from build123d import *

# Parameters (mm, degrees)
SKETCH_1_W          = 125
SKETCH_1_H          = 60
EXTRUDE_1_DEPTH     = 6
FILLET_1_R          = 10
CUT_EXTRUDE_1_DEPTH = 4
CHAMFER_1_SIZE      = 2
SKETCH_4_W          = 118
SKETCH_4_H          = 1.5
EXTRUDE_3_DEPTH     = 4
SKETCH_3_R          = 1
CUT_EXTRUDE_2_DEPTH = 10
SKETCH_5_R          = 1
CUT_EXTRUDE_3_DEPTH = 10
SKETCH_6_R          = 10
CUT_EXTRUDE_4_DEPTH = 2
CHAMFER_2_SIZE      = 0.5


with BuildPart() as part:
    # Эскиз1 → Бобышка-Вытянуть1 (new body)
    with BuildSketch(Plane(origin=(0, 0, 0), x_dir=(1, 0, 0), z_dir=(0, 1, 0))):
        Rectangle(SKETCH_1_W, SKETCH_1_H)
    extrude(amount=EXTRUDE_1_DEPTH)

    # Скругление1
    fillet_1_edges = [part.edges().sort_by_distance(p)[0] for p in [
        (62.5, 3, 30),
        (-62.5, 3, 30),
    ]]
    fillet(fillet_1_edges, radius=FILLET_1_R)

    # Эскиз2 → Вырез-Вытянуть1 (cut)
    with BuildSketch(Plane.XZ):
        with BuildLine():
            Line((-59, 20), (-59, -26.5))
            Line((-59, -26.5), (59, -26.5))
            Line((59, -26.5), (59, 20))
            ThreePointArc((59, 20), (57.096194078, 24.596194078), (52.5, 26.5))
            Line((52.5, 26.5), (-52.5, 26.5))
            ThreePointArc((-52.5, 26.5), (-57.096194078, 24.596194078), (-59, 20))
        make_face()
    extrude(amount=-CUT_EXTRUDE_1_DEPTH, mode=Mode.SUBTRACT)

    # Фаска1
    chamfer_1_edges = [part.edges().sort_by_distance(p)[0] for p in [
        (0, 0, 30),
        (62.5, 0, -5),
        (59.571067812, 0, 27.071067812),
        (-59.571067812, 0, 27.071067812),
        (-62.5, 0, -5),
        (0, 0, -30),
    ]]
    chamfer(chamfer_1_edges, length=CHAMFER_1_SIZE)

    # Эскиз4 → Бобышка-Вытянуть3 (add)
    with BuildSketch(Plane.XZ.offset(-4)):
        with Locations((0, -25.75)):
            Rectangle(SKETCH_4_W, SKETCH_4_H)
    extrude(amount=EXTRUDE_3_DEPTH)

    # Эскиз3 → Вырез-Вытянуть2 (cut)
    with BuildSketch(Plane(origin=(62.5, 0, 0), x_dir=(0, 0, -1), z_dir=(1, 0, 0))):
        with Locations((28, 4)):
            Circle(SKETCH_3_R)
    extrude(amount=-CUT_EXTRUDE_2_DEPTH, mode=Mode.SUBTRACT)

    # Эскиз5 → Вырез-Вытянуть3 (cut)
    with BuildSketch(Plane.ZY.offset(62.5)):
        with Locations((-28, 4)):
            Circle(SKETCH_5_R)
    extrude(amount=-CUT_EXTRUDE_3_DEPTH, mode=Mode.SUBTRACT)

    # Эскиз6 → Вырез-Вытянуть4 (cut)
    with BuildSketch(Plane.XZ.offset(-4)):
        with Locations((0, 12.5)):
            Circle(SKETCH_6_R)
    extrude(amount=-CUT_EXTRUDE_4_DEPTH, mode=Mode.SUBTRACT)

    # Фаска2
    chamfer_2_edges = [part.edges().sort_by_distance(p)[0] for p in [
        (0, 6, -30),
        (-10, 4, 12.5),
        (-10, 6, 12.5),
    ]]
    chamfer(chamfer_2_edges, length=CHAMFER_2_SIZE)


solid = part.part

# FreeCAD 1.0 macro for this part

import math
import FreeCAD as App
import Part
import Sketcher
Q = App.Units.Quantity


def edges_at(feature, points):
    """Names of the edges that pass closest to the given points."""
    edges = feature.Shape.Edges
    near = lambda p: min(range(len(edges)), key=lambda i: edges[i].distToShape(Part.Vertex(*p))[0])
    return sorted({f"Edge{near(p) + 1}" for p in points})

doc = App.newDocument("Part")
body = doc.addObject("PartDesign::Body", "Body")

sketch1 = body.newObject("Sketcher::SketchObject", "Sketch")
sketch1.AttachmentSupport = (doc.getObject("XZ_Plane"), [""])
sketch1.MapMode = "FlatFace"
sketch1.addGeometry([
    Part.LineSegment(App.Vector(-62, -30, 0), App.Vector(-62, 30, 0)),
    Part.LineSegment(App.Vector(-62, 30, 0), App.Vector(62, 30, 0)),
    Part.LineSegment(App.Vector(62, 30, 0), App.Vector(62, -30, 0)),
    Part.LineSegment(App.Vector(62, -30, 0), App.Vector(-62, -30, 0)),
], False)
sketch1.addConstraint([
    Sketcher.Constraint("Coincident", 0, 2, 1, 1),
    Sketcher.Constraint("Coincident", 1, 2, 2, 1),
    Sketcher.Constraint("Coincident", 2, 2, 3, 1),
    Sketcher.Constraint("Coincident", 3, 2, 0, 1),
    Sketcher.Constraint("Vertical", 0),
    Sketcher.Constraint("Horizontal", 1),
    Sketcher.Constraint("Vertical", 2),
    Sketcher.Constraint("Horizontal", 3),
    Sketcher.Constraint("Symmetric", 0, 2, 2, 2, -1, 1),
    Sketcher.Constraint("DistanceX", 1, 1, 1, 2, Q("125 mm")),
    Sketcher.Constraint("DistanceY", 0, 1, 0, 2, Q("60 mm")),
])
pad1 = body.newObject("PartDesign::Pad", "Pad")
pad1.Profile = sketch1
pad1.Length = 6
pad1.Reversed = True
doc.recompute()

fillet = body.newObject("PartDesign::Fillet", "Fillet")
fillet.Base = (pad1, edges_at(pad1, [(62.5, 3, 30), (-62.5, 3, 30)]))
fillet.Radius = 10

sketch2 = body.newObject("Sketcher::SketchObject", "Sketch001")
sketch2.AttachmentSupport = (doc.getObject("XZ_Plane"), [""])
sketch2.MapMode = "FlatFace"
sketch2.addGeometry([
    Part.LineSegment(App.Vector(-59, 20, 0), App.Vector(-59, -26, 0)),
    Part.LineSegment(App.Vector(-59, -26, 0), App.Vector(59, -26, 0)),
    Part.LineSegment(App.Vector(59, -26, 0), App.Vector(59, 20, 0)),
    Part.ArcOfCircle(Part.Circle(App.Vector(53, 20, 0), App.Vector(0, 0, 1), 6), math.radians(0), math.radians(90)),
    Part.LineSegment(App.Vector(52, 26, 0), App.Vector(-52, 26, 0)),
    Part.ArcOfCircle(Part.Circle(App.Vector(-53, 20, 0), App.Vector(0, 0, 1), 6), math.radians(90), math.radians(180)),
], False)
sketch2.addConstraint([
    Sketcher.Constraint("Coincident", 0, 2, 1, 1),
    Sketcher.Constraint("Coincident", 1, 2, 2, 1),
    Sketcher.Constraint("Tangent", 2, 2, 3, 1),
    Sketcher.Constraint("Tangent", 3, 2, 4, 1),
    Sketcher.Constraint("Tangent", 4, 2, 5, 1),
    Sketcher.Constraint("Tangent", 5, 2, 0, 1),
    Sketcher.Constraint("Vertical", 0),
    Sketcher.Constraint("Horizontal", 1),
    Sketcher.Constraint("Vertical", 2),
    Sketcher.Constraint("Horizontal", 4),
    Sketcher.Constraint("Equal", 3, 5),
    Sketcher.Constraint("Radius", 3, Q("6.5 mm")),
    Sketcher.Constraint("DistanceX", 1, 1, 1, 2, Q("118 mm")),
    Sketcher.Constraint("DistanceY", 0, 2, 0, 1, Q("46.5 mm")),
    Sketcher.Constraint("DistanceY", -1, 1, 3, 3, Q("20 mm")),
    Sketcher.Constraint("DistanceX", 0, 2, -1, 1, Q("59 mm")),
])
pocket1 = body.newObject("PartDesign::Pocket", "Pocket")
pocket1.Profile = sketch2
pocket1.Length = 4
doc.recompute()

chamfer = body.newObject("PartDesign::Chamfer", "Chamfer")
chamfer.Base = (pocket1, edges_at(pocket1, [
    (0, 0, 30),
    (62.5, 0, -5),
    (59.571, 0, 27.071),
    (-59.571, 0, 27.071),
    (-62.5, 0, -5),
    (0, 0, -30),
]))
chamfer.Size = 2

sketch3 = body.newObject("Sketcher::SketchObject", "Sketch002")
sketch3.AttachmentSupport = (doc.getObject("XZ_Plane"), [""])
sketch3.MapMode = "FlatFace"
sketch3.AttachmentOffset = App.Placement(App.Vector(0, 0, -4), App.Rotation())
sketch3.addGeometry([
    Part.LineSegment(App.Vector(-59, -25, 0), App.Vector(-59, -26.5, 0)),
    Part.LineSegment(App.Vector(-59, -26.5, 0), App.Vector(59, -26.5, 0)),
    Part.LineSegment(App.Vector(59, -26.5, 0), App.Vector(59, -25, 0)),
    Part.LineSegment(App.Vector(59, -25, 0), App.Vector(-59, -25, 0)),
], False)
sketch3.addConstraint([
    Sketcher.Constraint("Coincident", 0, 2, 1, 1),
    Sketcher.Constraint("Coincident", 1, 2, 2, 1),
    Sketcher.Constraint("Coincident", 2, 2, 3, 1),
    Sketcher.Constraint("Coincident", 3, 2, 0, 1),
    Sketcher.Constraint("Vertical", 0),
    Sketcher.Constraint("Horizontal", 1),
    Sketcher.Constraint("Vertical", 2),
    Sketcher.Constraint("Horizontal", 3),
    Sketcher.Constraint("DistanceX", 1, 1, 1, 2, Q("118 mm")),
    Sketcher.Constraint("DistanceY", 0, 2, 0, 1, Q("1.5 mm")),
    Sketcher.Constraint("DistanceX", 0, 2, -1, 1, Q("59 mm")),
    Sketcher.Constraint("DistanceY", 2, 2, -1, 1, Q("25 mm")),
])
pad2 = body.newObject("PartDesign::Pad", "Pad001")
pad2.Profile = sketch3
pad2.Length = 4

sketch4 = body.newObject("Sketcher::SketchObject", "Sketch003")
sketch4.AttachmentSupport = (doc.getObject("YZ_Plane"), [""])
sketch4.MapMode = "FlatFace"
sketch4.AttachmentOffset = App.Placement(App.Vector(0, 0, 62.5), App.Rotation())
sketch4.addGeometry(Part.Circle(App.Vector(4, -28, 0), App.Vector(0, 0, 1), 1), False)
sketch4.addConstraint([
    Sketcher.Constraint("Diameter", 0, Q("2 mm")),
    Sketcher.Constraint("DistanceX", -1, 1, 0, 3, Q("4 mm")),
    Sketcher.Constraint("DistanceY", 0, 3, -1, 1, Q("28 mm")),
])
pocket2 = body.newObject("PartDesign::Pocket", "Pocket001")
pocket2.Profile = sketch4
pocket2.Length = 10

sketch5 = body.newObject("Sketcher::SketchObject", "Sketch004")
sketch5.AttachmentSupport = (doc.getObject("YZ_Plane"), [""])
sketch5.MapMode = "FlatFace"
sketch5.AttachmentOffset = App.Placement(App.Vector(0, 0, -62.5), App.Rotation())
sketch5.addGeometry(Part.Circle(App.Vector(4, -28, 0), App.Vector(0, 0, 1), 1), False)
sketch5.addConstraint([
    Sketcher.Constraint("Diameter", 0, Q("2 mm")),
    Sketcher.Constraint("DistanceX", -1, 1, 0, 3, Q("4 mm")),
    Sketcher.Constraint("DistanceY", 0, 3, -1, 1, Q("28 mm")),
])
pocket3 = body.newObject("PartDesign::Pocket", "Pocket002")
pocket3.Profile = sketch5
pocket3.Length = 10
pocket3.Reversed = True

sketch6 = body.newObject("Sketcher::SketchObject", "Sketch005")
sketch6.AttachmentSupport = (doc.getObject("XZ_Plane"), [""])
sketch6.MapMode = "FlatFace"
sketch6.AttachmentOffset = App.Placement(App.Vector(0, 0, -4), App.Rotation())
sketch6.addGeometry(Part.Circle(App.Vector(0, 12, 0), App.Vector(0, 0, 1), 10), False)
sketch6.addConstraint([
    Sketcher.Constraint("PointOnObject", 0, 3, -2),
    Sketcher.Constraint("Diameter", 0, Q("20 mm")),
    Sketcher.Constraint("DistanceY", -1, 1, 0, 3, Q("12.5 mm")),
])
pocket4 = body.newObject("PartDesign::Pocket", "Pocket003")
pocket4.Profile = sketch6
pocket4.Length = 2
doc.recompute()

chamfer2 = body.newObject("PartDesign::Chamfer", "Chamfer001")
chamfer2.Base = (pocket4, edges_at(pocket4, [(0, 6, -30), (-10, 4, 12.5), (-10, 6, 12.5)]))
chamfer2.Size = 0.5

doc.recompute()
